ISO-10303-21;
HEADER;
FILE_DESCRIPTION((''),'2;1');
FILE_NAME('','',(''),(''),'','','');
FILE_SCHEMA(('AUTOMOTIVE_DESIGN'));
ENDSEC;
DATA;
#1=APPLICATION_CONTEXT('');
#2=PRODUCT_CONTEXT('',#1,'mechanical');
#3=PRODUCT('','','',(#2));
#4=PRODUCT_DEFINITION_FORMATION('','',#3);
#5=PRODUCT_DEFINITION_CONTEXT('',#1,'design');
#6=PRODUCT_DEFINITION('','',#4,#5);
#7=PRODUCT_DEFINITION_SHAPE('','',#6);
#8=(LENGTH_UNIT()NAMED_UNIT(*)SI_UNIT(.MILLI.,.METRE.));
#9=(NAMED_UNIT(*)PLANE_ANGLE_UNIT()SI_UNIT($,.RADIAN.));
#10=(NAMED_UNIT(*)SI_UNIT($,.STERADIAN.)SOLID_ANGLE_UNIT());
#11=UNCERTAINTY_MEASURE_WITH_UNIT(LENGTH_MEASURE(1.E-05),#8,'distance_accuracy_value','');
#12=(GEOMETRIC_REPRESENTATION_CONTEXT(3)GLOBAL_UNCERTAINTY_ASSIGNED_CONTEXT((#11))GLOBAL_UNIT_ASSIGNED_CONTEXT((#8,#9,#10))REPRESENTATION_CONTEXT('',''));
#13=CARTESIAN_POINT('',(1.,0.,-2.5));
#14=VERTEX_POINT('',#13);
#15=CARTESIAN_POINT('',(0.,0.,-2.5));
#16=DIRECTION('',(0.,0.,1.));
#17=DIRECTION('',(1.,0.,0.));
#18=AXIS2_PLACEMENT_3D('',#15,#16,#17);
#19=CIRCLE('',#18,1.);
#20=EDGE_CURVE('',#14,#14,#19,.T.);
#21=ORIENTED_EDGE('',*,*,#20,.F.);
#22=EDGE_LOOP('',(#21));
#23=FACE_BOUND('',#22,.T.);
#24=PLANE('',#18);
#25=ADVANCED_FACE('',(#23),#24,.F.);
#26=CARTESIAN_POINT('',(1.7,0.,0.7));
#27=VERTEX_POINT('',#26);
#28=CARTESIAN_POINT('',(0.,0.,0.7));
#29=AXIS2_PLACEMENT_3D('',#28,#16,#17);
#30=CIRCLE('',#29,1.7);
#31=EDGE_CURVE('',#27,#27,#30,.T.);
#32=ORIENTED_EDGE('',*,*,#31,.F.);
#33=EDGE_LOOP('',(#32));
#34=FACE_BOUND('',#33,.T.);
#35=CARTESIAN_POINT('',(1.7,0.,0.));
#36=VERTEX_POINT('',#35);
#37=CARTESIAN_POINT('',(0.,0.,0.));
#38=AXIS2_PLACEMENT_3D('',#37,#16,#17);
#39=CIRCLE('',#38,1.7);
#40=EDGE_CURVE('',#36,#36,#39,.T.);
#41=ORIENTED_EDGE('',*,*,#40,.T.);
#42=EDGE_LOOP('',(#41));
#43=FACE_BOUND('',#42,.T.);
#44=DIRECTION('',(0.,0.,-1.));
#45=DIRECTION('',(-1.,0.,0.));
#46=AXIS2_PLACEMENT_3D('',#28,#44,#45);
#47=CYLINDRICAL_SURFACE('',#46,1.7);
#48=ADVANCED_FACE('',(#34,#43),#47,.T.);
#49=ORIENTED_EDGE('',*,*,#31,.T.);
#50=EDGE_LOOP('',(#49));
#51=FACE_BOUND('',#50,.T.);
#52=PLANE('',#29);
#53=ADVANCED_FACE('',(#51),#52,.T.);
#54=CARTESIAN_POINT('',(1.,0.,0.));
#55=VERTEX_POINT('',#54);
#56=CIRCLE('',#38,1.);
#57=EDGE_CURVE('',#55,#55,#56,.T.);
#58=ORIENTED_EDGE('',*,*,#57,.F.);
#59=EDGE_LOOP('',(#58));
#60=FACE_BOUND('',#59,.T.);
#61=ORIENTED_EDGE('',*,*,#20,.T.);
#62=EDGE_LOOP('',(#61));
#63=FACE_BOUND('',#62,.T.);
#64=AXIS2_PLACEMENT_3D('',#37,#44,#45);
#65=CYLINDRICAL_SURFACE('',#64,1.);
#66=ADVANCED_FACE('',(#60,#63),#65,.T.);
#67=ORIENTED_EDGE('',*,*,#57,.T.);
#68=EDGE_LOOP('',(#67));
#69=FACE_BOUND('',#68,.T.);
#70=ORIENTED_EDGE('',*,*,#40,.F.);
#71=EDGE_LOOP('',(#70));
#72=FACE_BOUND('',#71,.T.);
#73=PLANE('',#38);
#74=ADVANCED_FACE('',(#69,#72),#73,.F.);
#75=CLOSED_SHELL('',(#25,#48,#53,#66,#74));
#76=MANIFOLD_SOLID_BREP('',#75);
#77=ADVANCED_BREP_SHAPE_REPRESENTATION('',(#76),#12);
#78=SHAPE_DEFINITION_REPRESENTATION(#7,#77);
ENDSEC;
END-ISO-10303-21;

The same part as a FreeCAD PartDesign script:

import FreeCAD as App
import Part
import Sketcher
Q = App.Units.Quantity

doc = App.newDocument("Part")
body = doc.addObject("PartDesign::Body", "Body")

# Sketch on XY plane
sketch1 = doc.addObject("Sketcher::SketchObject", "Sketch")
body.addObject(sketch1)
sketch1.AttachmentSupport = (doc.XY_Plane, [""])
sketch1.MapMode = "FlatFace"
sketch1.AttachmentOffset = App.Placement(App.Vector(0, 0, -2.5), App.Rotation())
sketch1.addGeometry(Part.Circle(App.Vector(0, 0, 0), App.Vector(0, 0, 1), 1), False)
sketch1.addConstraint(Sketcher.Constraint("Coincident", 0, 3, -1, 1))
sketch1.addConstraint(Sketcher.Constraint("Diameter", 0, Q("2 mm")))
pad1 = doc.addObject("PartDesign::Pad", "Pad")
body.addObject(pad1)
pad1.Profile = sketch1
pad1.Length = 2.5

# Sketch on XY plane
sketch2 = doc.addObject("Sketcher::SketchObject", "Sketch001")
body.addObject(sketch2)
sketch2.AttachmentSupport = (doc.XY_Plane, [""])
sketch2.MapMode = "FlatFace"
sketch2.addGeometry(Part.Circle(App.Vector(0, 0, 0), App.Vector(0, 0, 1), 1.7), False)
sketch2.addConstraint(Sketcher.Constraint("Coincident", 0, 3, -1, 1))
sketch2.addConstraint(Sketcher.Constraint("Diameter", 0, Q("3.4 mm")))
pad2 = doc.addObject("PartDesign::Pad", "Pad001")
body.addObject(pad2)
pad2.Profile = sketch2
pad2.Length = 0.7

doc.recompute()
